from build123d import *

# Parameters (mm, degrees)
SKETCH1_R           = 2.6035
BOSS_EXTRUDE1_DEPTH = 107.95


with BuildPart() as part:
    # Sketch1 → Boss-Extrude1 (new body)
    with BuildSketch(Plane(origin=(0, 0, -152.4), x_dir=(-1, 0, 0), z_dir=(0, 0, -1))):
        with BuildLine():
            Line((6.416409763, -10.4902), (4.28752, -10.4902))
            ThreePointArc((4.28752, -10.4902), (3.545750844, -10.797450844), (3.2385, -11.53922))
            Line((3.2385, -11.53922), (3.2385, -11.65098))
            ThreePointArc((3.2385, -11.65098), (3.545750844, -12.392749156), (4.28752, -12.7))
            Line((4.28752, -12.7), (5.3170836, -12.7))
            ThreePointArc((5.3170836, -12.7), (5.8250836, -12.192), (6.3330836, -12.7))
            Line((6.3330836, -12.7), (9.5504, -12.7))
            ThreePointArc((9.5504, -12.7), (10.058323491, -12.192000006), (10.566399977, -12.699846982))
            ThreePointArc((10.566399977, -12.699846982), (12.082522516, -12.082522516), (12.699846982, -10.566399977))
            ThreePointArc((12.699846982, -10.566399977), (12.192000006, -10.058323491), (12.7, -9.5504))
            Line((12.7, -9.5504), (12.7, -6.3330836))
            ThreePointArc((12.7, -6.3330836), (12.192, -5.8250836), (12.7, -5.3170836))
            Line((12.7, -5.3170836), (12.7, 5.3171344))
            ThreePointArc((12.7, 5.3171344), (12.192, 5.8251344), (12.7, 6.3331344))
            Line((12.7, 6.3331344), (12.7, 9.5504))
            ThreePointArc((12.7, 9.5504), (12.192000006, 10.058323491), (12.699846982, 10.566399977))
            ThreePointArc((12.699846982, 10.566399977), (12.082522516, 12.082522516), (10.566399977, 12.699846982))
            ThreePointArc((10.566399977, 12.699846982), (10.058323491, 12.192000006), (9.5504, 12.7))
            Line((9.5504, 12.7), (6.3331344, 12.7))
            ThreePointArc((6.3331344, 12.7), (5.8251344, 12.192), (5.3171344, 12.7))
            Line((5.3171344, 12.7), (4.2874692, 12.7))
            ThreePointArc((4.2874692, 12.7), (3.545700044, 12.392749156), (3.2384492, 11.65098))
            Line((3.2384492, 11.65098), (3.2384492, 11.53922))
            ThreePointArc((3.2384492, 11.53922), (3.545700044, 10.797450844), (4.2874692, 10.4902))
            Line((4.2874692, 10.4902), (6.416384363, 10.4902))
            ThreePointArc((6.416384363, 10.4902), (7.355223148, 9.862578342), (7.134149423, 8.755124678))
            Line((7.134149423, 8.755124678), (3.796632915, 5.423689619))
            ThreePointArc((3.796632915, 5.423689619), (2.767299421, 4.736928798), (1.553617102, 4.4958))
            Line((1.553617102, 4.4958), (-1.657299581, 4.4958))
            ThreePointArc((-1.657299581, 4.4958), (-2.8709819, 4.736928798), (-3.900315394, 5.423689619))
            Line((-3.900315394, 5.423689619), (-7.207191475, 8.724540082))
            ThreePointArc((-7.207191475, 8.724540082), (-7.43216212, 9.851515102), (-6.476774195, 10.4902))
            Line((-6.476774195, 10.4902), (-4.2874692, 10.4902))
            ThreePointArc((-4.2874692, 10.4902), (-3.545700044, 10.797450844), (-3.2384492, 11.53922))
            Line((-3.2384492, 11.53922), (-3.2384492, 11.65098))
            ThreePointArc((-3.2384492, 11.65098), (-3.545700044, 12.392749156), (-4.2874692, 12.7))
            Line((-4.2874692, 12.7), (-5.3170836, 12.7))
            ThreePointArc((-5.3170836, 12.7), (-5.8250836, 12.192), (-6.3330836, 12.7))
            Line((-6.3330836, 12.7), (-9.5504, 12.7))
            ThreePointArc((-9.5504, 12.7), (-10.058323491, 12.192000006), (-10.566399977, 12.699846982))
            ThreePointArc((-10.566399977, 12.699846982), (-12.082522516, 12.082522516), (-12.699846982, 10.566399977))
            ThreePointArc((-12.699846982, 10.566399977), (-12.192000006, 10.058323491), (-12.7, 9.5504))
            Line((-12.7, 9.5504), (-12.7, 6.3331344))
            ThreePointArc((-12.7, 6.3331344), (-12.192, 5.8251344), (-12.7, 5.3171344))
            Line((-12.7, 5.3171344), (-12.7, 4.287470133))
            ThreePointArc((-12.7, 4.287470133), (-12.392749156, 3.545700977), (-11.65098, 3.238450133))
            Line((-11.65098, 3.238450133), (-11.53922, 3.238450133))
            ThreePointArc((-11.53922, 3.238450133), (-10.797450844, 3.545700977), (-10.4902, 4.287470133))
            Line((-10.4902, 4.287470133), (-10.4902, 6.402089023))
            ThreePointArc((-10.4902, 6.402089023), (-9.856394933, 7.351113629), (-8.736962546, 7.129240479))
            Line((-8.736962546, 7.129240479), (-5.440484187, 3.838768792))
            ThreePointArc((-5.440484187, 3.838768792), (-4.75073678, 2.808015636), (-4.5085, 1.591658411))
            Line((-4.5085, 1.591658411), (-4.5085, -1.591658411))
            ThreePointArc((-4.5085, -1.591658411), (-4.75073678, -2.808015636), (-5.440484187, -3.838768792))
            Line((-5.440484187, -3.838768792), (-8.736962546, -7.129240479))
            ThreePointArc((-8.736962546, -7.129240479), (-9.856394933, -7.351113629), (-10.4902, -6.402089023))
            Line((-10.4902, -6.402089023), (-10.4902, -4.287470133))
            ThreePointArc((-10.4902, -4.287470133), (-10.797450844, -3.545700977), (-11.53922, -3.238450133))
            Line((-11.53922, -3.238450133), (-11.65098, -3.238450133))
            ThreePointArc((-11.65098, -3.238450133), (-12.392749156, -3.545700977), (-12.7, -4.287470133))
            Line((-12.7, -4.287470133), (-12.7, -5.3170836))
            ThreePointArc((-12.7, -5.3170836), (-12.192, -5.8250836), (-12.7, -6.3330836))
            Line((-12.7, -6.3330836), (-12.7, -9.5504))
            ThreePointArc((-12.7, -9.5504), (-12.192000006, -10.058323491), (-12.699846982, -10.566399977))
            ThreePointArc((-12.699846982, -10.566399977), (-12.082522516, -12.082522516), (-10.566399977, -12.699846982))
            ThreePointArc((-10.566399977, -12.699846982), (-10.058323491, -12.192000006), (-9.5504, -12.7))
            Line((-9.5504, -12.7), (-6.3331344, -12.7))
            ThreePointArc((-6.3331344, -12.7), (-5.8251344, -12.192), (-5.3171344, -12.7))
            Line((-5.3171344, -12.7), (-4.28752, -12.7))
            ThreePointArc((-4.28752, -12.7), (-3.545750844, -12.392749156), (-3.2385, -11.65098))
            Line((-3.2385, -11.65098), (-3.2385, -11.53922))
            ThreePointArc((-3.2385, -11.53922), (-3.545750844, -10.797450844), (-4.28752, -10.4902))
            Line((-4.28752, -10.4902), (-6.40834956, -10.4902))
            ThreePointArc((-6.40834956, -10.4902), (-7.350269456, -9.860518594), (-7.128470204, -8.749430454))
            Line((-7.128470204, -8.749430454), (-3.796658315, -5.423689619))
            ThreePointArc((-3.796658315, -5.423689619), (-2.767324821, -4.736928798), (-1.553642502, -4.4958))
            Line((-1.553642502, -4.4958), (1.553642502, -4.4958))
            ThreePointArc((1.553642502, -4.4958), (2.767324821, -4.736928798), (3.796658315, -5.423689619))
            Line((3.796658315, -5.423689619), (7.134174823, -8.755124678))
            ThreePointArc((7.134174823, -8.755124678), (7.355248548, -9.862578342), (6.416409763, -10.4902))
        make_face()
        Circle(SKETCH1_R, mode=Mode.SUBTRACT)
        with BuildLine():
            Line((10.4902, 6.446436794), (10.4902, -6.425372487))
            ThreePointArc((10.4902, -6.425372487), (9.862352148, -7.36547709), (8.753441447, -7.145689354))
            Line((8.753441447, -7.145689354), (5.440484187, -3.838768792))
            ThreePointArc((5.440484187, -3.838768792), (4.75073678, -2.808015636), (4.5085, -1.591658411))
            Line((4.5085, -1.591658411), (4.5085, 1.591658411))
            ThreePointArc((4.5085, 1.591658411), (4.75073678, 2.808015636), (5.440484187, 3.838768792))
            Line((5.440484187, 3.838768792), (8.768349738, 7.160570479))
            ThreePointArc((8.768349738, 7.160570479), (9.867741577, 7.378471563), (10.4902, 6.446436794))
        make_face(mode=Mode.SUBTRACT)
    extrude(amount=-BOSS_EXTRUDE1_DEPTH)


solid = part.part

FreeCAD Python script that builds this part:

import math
import FreeCAD as App
import Part
import Sketcher
Q = App.Units.Quantity

doc = App.newDocument("Part")
params = doc.addObject("Spreadsheet::Sheet", "Params")
for row, (alias, value) in enumerate([
    ("sketch1_radius", "0.02 in"),
    ("sketch1_radius2", "0.04 in"),
    ("sketch1_diameter", "0.205 in"),
    ("sketch1_radius3", "0.083 in"),
    ("sketch1_radius4", "0.125 in"),
    ("pad1_length", "4.25 in"),
], start=1):
    params.set(f"A{row}", alias)
    params.set(f"B{row}", "=" + value)
    params.setAlias(f"B{row}", alias)

body = doc.addObject("PartDesign::Body", "Body")

sketch1 = doc.addObject("Sketcher::SketchObject", "Sketch")
body.addObject(sketch1)
sketch1.AttachmentSupport = (doc.XY_Plane, [""])
sketch1.MapMode = "FlatFace"
sketch1.AttachmentOffset = App.Placement(App.Vector(0, 0, -6 * 25.4), App.Rotation())
sketch1.addGeometry(Part.LineSegment(App.Vector(-6.42, -10.49, 0), App.Vector(-4.29, -10.49, 0)), False)
sketch1.addGeometry(Part.ArcOfCircle(Part.Circle(App.Vector(-4.29, -11.54, 0), App.Vector(0, 0, 1), 1.05), math.radians(0), math.radians(90)), False)
sketch1.addGeometry(Part.LineSegment(App.Vector(-3.24, -11.54, 0), App.Vector(-3.24, -11.65, 0)), False)
sketch1.addGeometry(Part.ArcOfCircle(Part.Circle(App.Vector(-4.29, -11.65, 0), App.Vector(0, 0, 1), 1.05), math.radians(-90), math.radians(0)), False)
sketch1.addGeometry(Part.LineSegment(App.Vector(-4.29, -12.7, 0), App.Vector(-5.32, -12.7, 0)), False)
sketch1.addGeometry(Part.ArcOfCircle(Part.Circle(App.Vector(-5.83, -12.7, 0), App.Vector(0, 0, 1), 0.51), math.radians(0), math.radians(180)), False)
sketch1.addGeometry(Part.LineSegment(App.Vector(-6.33, -12.7, 0), App.Vector(-9.55, -12.7, 0)), False)
sketch1.addGeometry(Part.ArcOfCircle(Part.Circle(App.Vector(-10.06, -12.7, 0), App.Vector(0, 0, 1), 0.51), math.radians(0), math.radians(180)), False)
sketch1.addGeometry(Part.ArcOfCircle(Part.Circle(App.Vector(-10.59, -10.59, 0), App.Vector(0, 0, 1), 2.11), math.radians(179), math.radians(271)), False)
sketch1.addGeometry(Part.ArcOfCircle(Part.Circle(App.Vector(-12.7, -10.06, 0), App.Vector(0, 0, 1), 0.51), math.radians(-90), math.radians(90)), False)
sketch1.addGeometry(Part.LineSegment(App.Vector(-12.7, -9.55, 0), App.Vector(-12.7, -6.33, 0)), False)
sketch1.addGeometry(Part.ArcOfCircle(Part.Circle(App.Vector(-12.7, -5.83, 0), App.Vector(0, 0, 1), 0.51), math.radians(-90), math.radians(90)), False)
sketch1.addGeometry(Part.LineSegment(App.Vector(-12.7, -5.32, 0), App.Vector(-12.7, 5.32, 0)), False)
sketch1.addGeometry(Part.ArcOfCircle(Part.Circle(App.Vector(-12.7, 5.83, 0), App.Vector(0, 0, 1), 0.51), math.radians(-90), math.radians(90)), False)
sketch1.addGeometry(Part.LineSegment(App.Vector(-12.7, 6.33, 0), App.Vector(-12.7, 9.55, 0)), False)
sketch1.addGeometry(Part.ArcOfCircle(Part.Circle(App.Vector(-12.7, 10.06, 0), App.Vector(0, 0, 1), 0.51), math.radians(-90), math.radians(90)), False)
sketch1.addGeometry(Part.ArcOfCircle(Part.Circle(App.Vector(-10.59, 10.59, 0), App.Vector(0, 0, 1), 2.11), math.radians(89), math.radians(181)), False)
sketch1.addGeometry(Part.ArcOfCircle(Part.Circle(App.Vector(-10.06, 12.7, 0), App.Vector(0, 0, 1), 0.51), math.radians(-180), math.radians(0)), False)
sketch1.addGeometry(Part.LineSegment(App.Vector(-9.55, 12.7, 0), App.Vector(-6.33, 12.7, 0)), False)
sketch1.addGeometry(Part.ArcOfCircle(Part.Circle(App.Vector(-5.83, 12.7, 0), App.Vector(0, 0, 1), 0.51), math.radians(180), math.radians(360)), False)
sketch1.addGeometry(Part.LineSegment(App.Vector(-5.32, 12.7, 0), App.Vector(-4.29, 12.7, 0)), False)
sketch1.addGeometry(Part.ArcOfCircle(Part.Circle(App.Vector(-4.29, 11.65, 0), App.Vector(0, 0, 1), 1.05), math.radians(0), math.radians(90)), False)
sketch1.addGeometry(Part.LineSegment(App.Vector(-3.24, 11.65, 0), App.Vector(-3.24, 11.54, 0)), False)
sketch1.addGeometry(Part.ArcOfCircle(Part.Circle(App.Vector(-4.29, 11.54, 0), App.Vector(0, 0, 1), 1.05), math.radians(-90), math.radians(0)), False)
sketch1.addGeometry(Part.LineSegment(App.Vector(-4.29, 10.49, 0), App.Vector(-6.42, 10.49, 0)), False)
sketch1.addGeometry(Part.ArcOfCircle(Part.Circle(App.Vector(-6.42, 9.47, 0), App.Vector(0, 0, 1), 1.02), math.radians(90), math.radians(225)), False)
sketch1.addGeometry(Part.LineSegment(App.Vector(-7.13, 8.76, 0), App.Vector(-3.8, 5.42, 0)), False)
sketch1.addGeometry(Part.ArcOfCircle(Part.Circle(App.Vector(-1.55, 7.67, 0), App.Vector(0, 0, 1), 3.17), math.radians(-135), math.radians(-90)), False)
sketch1.addGeometry(Part.LineSegment(App.Vector(-1.55, 4.5, 0), App.Vector(1.66, 4.5, 0)), False)
sketch1.addGeometry(Part.ArcOfCircle(Part.Circle(App.Vector(1.66, 7.67, 0), App.Vector(0, 0, 1), 3.17), math.radians(-90), math.radians(-45)), False)
sketch1.addGeometry(Part.LineSegment(App.Vector(3.9, 5.42, 0), App.Vector(7.21, 8.72, 0)), False)
sketch1.addGeometry(Part.ArcOfCircle(Part.Circle(App.Vector(6.48, 9.46, 0), App.Vector(0, 0, 1), 1.03), math.radians(-45), math.radians(90)), False)
sketch1.addGeometry(Part.LineSegment(App.Vector(6.48, 10.49, 0), App.Vector(4.29, 10.49, 0)), False)
sketch1.addGeometry(Part.ArcOfCircle(Part.Circle(App.Vector(4.29, 11.54, 0), App.Vector(0, 0, 1), 1.05), math.radians(180), math.radians(270)), False)
sketch1.addGeometry(Part.LineSegment(App.Vector(3.24, 11.54, 0), App.Vector(3.24, 11.65, 0)), False)
sketch1.addGeometry(Part.ArcOfCircle(Part.Circle(App.Vector(4.29, 11.65, 0), App.Vector(0, 0, 1), 1.05), math.radians(90), math.radians(180)), False)
sketch1.addGeometry(Part.LineSegment(App.Vector(4.29, 12.7, 0), App.Vector(5.32, 12.7, 0)), False)
sketch1.addGeometry(Part.ArcOfCircle(Part.Circle(App.Vector(5.83, 12.7, 0), App.Vector(0, 0, 1), 0.51), math.radians(180), math.radians(360)), False)
sketch1.addGeometry(Part.LineSegment(App.Vector(6.33, 12.7, 0), App.Vector(9.55, 12.7, 0)), False)
sketch1.addGeometry(Part.ArcOfCircle(Part.Circle(App.Vector(10.06, 12.7, 0), App.Vector(0, 0, 1), 0.51), math.radians(180), math.radians(360)), False)
sketch1.addGeometry(Part.ArcOfCircle(Part.Circle(App.Vector(10.59, 10.59, 0), App.Vector(0, 0, 1), 2.11), math.radians(-1), math.radians(91)), False)
sketch1.addGeometry(Part.ArcOfCircle(Part.Circle(App.Vector(12.7, 10.06, 0), App.Vector(0, 0, 1), 0.51), math.radians(90), math.radians(270)), False)
sketch1.addGeometry(Part.LineSegment(App.Vector(12.7, 9.55, 0), App.Vector(12.7, 6.33, 0)), False)
sketch1.addGeometry(Part.ArcOfCircle(Part.Circle(App.Vector(12.7, 5.83, 0), App.Vector(0, 0, 1), 0.51), math.radians(90), math.radians(270)), False)
sketch1.addGeometry(Part.LineSegment(App.Vector(12.7, 5.32, 0), App.Vector(12.7, 4.29, 0)), False)
sketch1.addGeometry(Part.ArcOfCircle(Part.Circle(App.Vector(11.65, 4.29, 0), App.Vector(0, 0, 1), 1.05), math.radians(-90), math.radians(0)), False)
sketch1.addGeometry(Part.LineSegment(App.Vector(11.65, 3.24, 0), App.Vector(11.54, 3.24, 0)), False)
sketch1.addGeometry(Part.ArcOfCircle(Part.Circle(App.Vector(11.54, 4.29, 0), App.Vector(0, 0, 1), 1.05), math.radians(180), math.radians(270)), False)
sketch1.addGeometry(Part.LineSegment(App.Vector(10.49, 4.29, 0), App.Vector(10.49, 6.4, 0)), False)
sketch1.addGeometry(Part.ArcOfCircle(Part.Circle(App.Vector(9.46, 6.4, 0), App.Vector(0, 0, 1), 1.03), math.radians(0), math.radians(135)), False)
sketch1.addGeometry(Part.LineSegment(App.Vector(8.74, 7.13, 0), App.Vector(5.44, 3.84, 0)), False)
sketch1.addGeometry(Part.ArcOfCircle(Part.Circle(App.Vector(7.68, 1.59, 0), App.Vector(0, 0, 1), 3.17), math.radians(135), math.radians(180)), False)
sketch1.addGeometry(Part.LineSegment(App.Vector(4.51, 1.59, 0), App.Vector(4.51, -1.59, 0)), False)
sketch1.addGeometry(Part.ArcOfCircle(Part.Circle(App.Vector(7.68, -1.59, 0), App.Vector(0, 0, 1), 3.17), math.radians(180), math.radians(225)), False)
sketch1.addGeometry(Part.LineSegment(App.Vector(5.44, -3.84, 0), App.Vector(8.74, -7.13, 0)), False)
sketch1.addGeometry(Part.ArcOfCircle(Part.Circle(App.Vector(9.46, -6.4, 0), App.Vector(0, 0, 1), 1.03), math.radians(-135), math.radians(0)), False)
sketch1.addGeometry(Part.LineSegment(App.Vector(10.49, -6.4, 0), App.Vector(10.49, -4.29, 0)), False)
sketch1.addGeometry(Part.ArcOfCircle(Part.Circle(App.Vector(11.54, -4.29, 0), App.Vector(0, 0, 1), 1.05), math.radians(90), math.radians(180)), False)
sketch1.addGeometry(Part.LineSegment(App.Vector(11.54, -3.24, 0), App.Vector(11.65, -3.24, 0)), False)
sketch1.addGeometry(Part.ArcOfCircle(Part.Circle(App.Vector(11.65, -4.29, 0), App.Vector(0, 0, 1), 1.05), math.radians(0), math.radians(90)), False)
sketch1.addGeometry(Part.LineSegment(App.Vector(12.7, -4.29, 0), App.Vector(12.7, -5.32, 0)), False)
sketch1.addGeometry(Part.ArcOfCircle(Part.Circle(App.Vector(12.7, -5.83, 0), App.Vector(0, 0, 1), 0.51), math.radians(90), math.radians(270)), False)
sketch1.addGeometry(Part.LineSegment(App.Vector(12.7, -6.33, 0), App.Vector(12.7, -9.55, 0)), False)
sketch1.addGeometry(Part.ArcOfCircle(Part.Circle(App.Vector(12.7, -10.06, 0), App.Vector(0, 0, 1), 0.51), math.radians(90), math.radians(270)), False)
sketch1.addGeometry(Part.ArcOfCircle(Part.Circle(App.Vector(10.59, -10.59, 0), App.Vector(0, 0, 1), 2.11), math.radians(-91), math.radians(1)), False)
sketch1.addGeometry(Part.ArcOfCircle(Part.Circle(App.Vector(10.06, -12.7, 0), App.Vector(0, 0, 1), 0.51), math.radians(0), math.radians(180)), False)
sketch1.addGeometry(Part.LineSegment(App.Vector(9.55, -12.7, 0), App.Vector(6.33, -12.7, 0)), False)
sketch1.addGeometry(Part.ArcOfCircle(Part.Circle(App.Vector(5.83, -12.7, 0), App.Vector(0, 0, 1), 0.51), math.radians(0), math.radians(180)), False)
sketch1.addGeometry(Part.LineSegment(App.Vector(5.32, -12.7, 0), App.Vector(4.29, -12.7, 0)), False)
sketch1.addGeometry(Part.ArcOfCircle(Part.Circle(App.Vector(4.29, -11.65, 0), App.Vector(0, 0, 1), 1.05), math.radians(180), math.radians(270)), False)
sketch1.addGeometry(Part.LineSegment(App.Vector(3.24, -11.65, 0), App.Vector(3.24, -11.54, 0)), False)
sketch1.addGeometry(Part.ArcOfCircle(Part.Circle(App.Vector(4.29, -11.54, 0), App.Vector(0, 0, 1), 1.05), math.radians(90), math.radians(180)), False)
sketch1.addGeometry(Part.LineSegment(App.Vector(4.29, -10.49, 0), App.Vector(6.41, -10.49, 0)), False)
sketch1.addGeometry(Part.ArcOfCircle(Part.Circle(App.Vector(6.41, -9.47, 0), App.Vector(0, 0, 1), 1.02), math.radians(-90), math.radians(45)), False)
sketch1.addGeometry(Part.LineSegment(App.Vector(7.13, -8.75, 0), App.Vector(3.8, -5.42, 0)), False)
sketch1.addGeometry(Part.ArcOfCircle(Part.Circle(App.Vector(1.55, -7.67, 0), App.Vector(0, 0, 1), 3.17), math.radians(45), math.radians(90)), False)
sketch1.addGeometry(Part.LineSegment(App.Vector(1.55, -4.5, 0), App.Vector(-1.55, -4.5, 0)), False)
sketch1.addGeometry(Part.ArcOfCircle(Part.Circle(App.Vector(-1.55, -7.67, 0), App.Vector(0, 0, 1), 3.17), math.radians(90), math.radians(135)), False)
sketch1.addGeometry(Part.LineSegment(App.Vector(-3.8, -5.42, 0), App.Vector(-7.13, -8.76, 0)), False)
sketch1.addGeometry(Part.ArcOfCircle(Part.Circle(App.Vector(-6.42, -9.47, 0), App.Vector(0, 0, 1), 1.02), math.radians(135), math.radians(270)), False)
sketch1.addGeometry(Part.Circle(App.Vector(0, 0, 0), App.Vector(0, 0, 1), 2.6), False)
sketch1.addGeometry(Part.ArcOfCircle(Part.Circle(App.Vector(-9.48, 6.45, 0), App.Vector(0, 0, 1), 1.01), math.radians(45), math.radians(180)), False)
sketch1.addGeometry(Part.LineSegment(App.Vector(-10.49, 6.45, 0), App.Vector(-10.49, -6.43, 0)), False)
sketch1.addGeometry(Part.ArcOfCircle(Part.Circle(App.Vector(-9.47, -6.43, 0), App.Vector(0, 0, 1), 1.02), math.radians(180), math.radians(315)), False)
sketch1.addGeometry(Part.LineSegment(App.Vector(-8.75, -7.15, 0), App.Vector(-5.44, -3.84, 0)), False)
sketch1.addGeometry(Part.ArcOfCircle(Part.Circle(App.Vector(-7.68, -1.59, 0), App.Vector(0, 0, 1), 3.17), math.radians(-45), math.radians(0)), False)
sketch1.addGeometry(Part.LineSegment(App.Vector(-4.51, -1.59, 0), App.Vector(-4.51, 1.59, 0)), False)
sketch1.addGeometry(Part.ArcOfCircle(Part.Circle(App.Vector(-7.68, 1.59, 0), App.Vector(0, 0, 1), 3.17), math.radians(0), math.radians(45)), False)
sketch1.addGeometry(Part.LineSegment(App.Vector(-5.44, 3.84, 0), App.Vector(-8.77, 7.16, 0)), False)
sketch1.addConstraint(Sketcher.Constraint("Tangent", 0, 2, 1, 2))
sketch1.addConstraint(Sketcher.Constraint("Tangent", 1, 1, 2, 1))
sketch1.addConstraint(Sketcher.Constraint("Tangent", 2, 2, 3, 2))
sketch1.addConstraint(Sketcher.Constraint("Tangent", 3, 1, 4, 1))
sketch1.addConstraint(Sketcher.Constraint("Coincident", 4, 2, 5, 1))
sketch1.addConstraint(Sketcher.Constraint("Coincident", 5, 2, 6, 1))
sketch1.addConstraint(Sketcher.Constraint("Coincident", 6, 2, 7, 1))
sketch1.addConstraint(Sketcher.Constraint("Coincident", 7, 2, 8, 2))
sketch1.addConstraint(Sketcher.Constraint("Coincident", 8, 1, 9, 1))
sketch1.addConstraint(Sketcher.Constraint("Coincident", 9, 2, 10, 1))
sketch1.addConstraint(Sketcher.Constraint("Coincident", 10, 2, 11, 1))
sketch1.addConstraint(Sketcher.Constraint("Coincident", 11, 2, 12, 1))
sketch1.addConstraint(Sketcher.Constraint("Coincident", 12, 2, 13, 1))
sketch1.addConstraint(Sketcher.Constraint("Coincident", 13, 2, 14, 1))
sketch1.addConstraint(Sketcher.Constraint("Coincident", 14, 2, 15, 1))
sketch1.addConstraint(Sketcher.Constraint("Coincident", 15, 2, 16, 2))
sketch1.addConstraint(Sketcher.Constraint("Coincident", 16, 1, 17, 1))
sketch1.addConstraint(Sketcher.Constraint("Coincident", 17, 2, 18, 1))
sketch1.addConstraint(Sketcher.Constraint("Coincident", 18, 2, 19, 1))
sketch1.addConstraint(Sketcher.Constraint("Coincident", 19, 2, 20, 1))
sketch1.addConstraint(Sketcher.Constraint("Tangent", 20, 2, 21, 2))
sketch1.addConstraint(Sketcher.Constraint("Tangent", 21, 1, 22, 1))
sketch1.addConstraint(Sketcher.Constraint("Tangent", 22, 2, 23, 2))
sketch1.addConstraint(Sketcher.Constraint("Tangent", 23, 1, 24, 1))
sketch1.addConstraint(Sketcher.Constraint("Tangent", 24, 2, 25, 1))
sketch1.addConstraint(Sketcher.Constraint("Tangent", 25, 2, 26, 1))
sketch1.addConstraint(Sketcher.Constraint("Tangent", 26, 2, 27, 1))
sketch1.addConstraint(Sketcher.Constraint("Tangent", 27, 2, 28, 1))
sketch1.addConstraint(Sketcher.Constraint("Tangent", 28, 2, 29, 1))
sketch1.addConstraint(Sketcher.Constraint("Tangent", 29, 2, 30, 1))
sketch1.addConstraint(Sketcher.Constraint("Tangent", 30, 2, 31, 1))
sketch1.addConstraint(Sketcher.Constraint("Tangent", 31, 2, 32, 1))
sketch1.addConstraint(Sketcher.Constraint("Tangent", 32, 2, 33, 2))
sketch1.addConstraint(Sketcher.Constraint("Tangent", 33, 1, 34, 1))
sketch1.addConstraint(Sketcher.Constraint("Tangent", 34, 2, 35, 2))
sketch1.addConstraint(Sketcher.Constraint("Tangent", 35, 1, 36, 1))
sketch1.addConstraint(Sketcher.Constraint("Coincident", 36, 2, 37, 1))
sketch1.addConstraint(Sketcher.Constraint("Coincident", 37, 2, 38, 1))
sketch1.addConstraint(Sketcher.Constraint("Coincident", 38, 2, 39, 1))
sketch1.addConstraint(Sketcher.Constraint("Coincident", 39, 2, 40, 2))
sketch1.addConstraint(Sketcher.Constraint("Coincident", 40, 1, 41, 1))
sketch1.addConstraint(Sketcher.Constraint("Coincident", 41, 2, 42, 1))
sketch1.addConstraint(Sketcher.Constraint("Coincident", 42, 2, 43, 1))
sketch1.addConstraint(Sketcher.Constraint("Coincident", 43, 2, 44, 1))
sketch1.addConstraint(Sketcher.Constraint("Tangent", 44, 2, 45, 2))
sketch1.addConstraint(Sketcher.Constraint("Tangent", 45, 1, 46, 1))
sketch1.addConstraint(Sketcher.Constraint("Tangent", 46, 2, 47, 2))
sketch1.addConstraint(Sketcher.Constraint("Tangent", 47, 1, 48, 1))
sketch1.addConstraint(Sketcher.Constraint("Tangent", 48, 2, 49, 1))
sketch1.addConstraint(Sketcher.Constraint("Tangent", 49, 2, 50, 1))
sketch1.addConstraint(Sketcher.Constraint("Tangent", 50, 2, 51, 1))
sketch1.addConstraint(Sketcher.Constraint("Tangent", 51, 2, 52, 1))
sketch1.addConstraint(Sketcher.Constraint("Tangent", 52, 2, 53, 1))
sketch1.addConstraint(Sketcher.Constraint("Tangent", 53, 2, 54, 1))
sketch1.addConstraint(Sketcher.Constraint("Tangent", 54, 2, 55, 1))
sketch1.addConstraint(Sketcher.Constraint("Tangent", 55, 2, 56, 1))
sketch1.addConstraint(Sketcher.Constraint("Tangent", 56, 2, 57, 2))
sketch1.addConstraint(Sketcher.Constraint("Tangent", 57, 1, 58, 1))
sketch1.addConstraint(Sketcher.Constraint("Tangent", 58, 2, 59, 2))
sketch1.addConstraint(Sketcher.Constraint("Tangent", 59, 1, 60, 1))
sketch1.addConstraint(Sketcher.Constraint("Coincident", 60, 2, 61, 1))
sketch1.addConstraint(Sketcher.Constraint("Coincident", 61, 2, 62, 1))
sketch1.addConstraint(Sketcher.Constraint("Coincident", 62, 2, 63, 1))
sketch1.addConstraint(Sketcher.Constraint("Coincident", 63, 2, 64, 2))
sketch1.addConstraint(Sketcher.Constraint("Coincident", 64, 1, 65, 1))
sketch1.addConstraint(Sketcher.Constraint("Coincident", 65, 2, 66, 1))
sketch1.addConstraint(Sketcher.Constraint("Coincident", 66, 2, 67, 1))
sketch1.addConstraint(Sketcher.Constraint("Coincident", 67, 2, 68, 1))
sketch1.addConstraint(Sketcher.Constraint("Tangent", 68, 2, 69, 2))
sketch1.addConstraint(Sketcher.Constraint("Tangent", 69, 1, 70, 1))
sketch1.addConstraint(Sketcher.Constraint("Tangent", 70, 2, 71, 2))
sketch1.addConstraint(Sketcher.Constraint("Tangent", 71, 1, 72, 1))
sketch1.addConstraint(Sketcher.Constraint("Tangent", 72, 2, 73, 1))
sketch1.addConstraint(Sketcher.Constraint("Tangent", 73, 2, 74, 1))
sketch1.addConstraint(Sketcher.Constraint("Tangent", 74, 2, 75, 1))
sketch1.addConstraint(Sketcher.Constraint("Tangent", 75, 2, 76, 1))
sketch1.addConstraint(Sketcher.Constraint("Tangent", 76, 2, 77, 1))
sketch1.addConstraint(Sketcher.Constraint("Tangent", 77, 2, 78, 1))
sketch1.addConstraint(Sketcher.Constraint("Tangent", 78, 2, 79, 1))
sketch1.addConstraint(Sketcher.Constraint("Tangent", 79, 2, 0, 1))
sketch1.addConstraint(Sketcher.Constraint("Tangent", 81, 2, 82, 1))
sketch1.addConstraint(Sketcher.Constraint("Tangent", 82, 2, 83, 1))
sketch1.addConstraint(Sketcher.Constraint("Tangent", 83, 2, 84, 1))
sketch1.addConstraint(Sketcher.Constraint("Tangent", 84, 2, 85, 1))
sketch1.addConstraint(Sketcher.Constraint("Tangent", 85, 2, 86, 1))
sketch1.addConstraint(Sketcher.Constraint("Tangent", 86, 2, 87, 1))
sketch1.addConstraint(Sketcher.Constraint("Tangent", 87, 2, 88, 1))
sketch1.addConstraint(Sketcher.Constraint("Tangent", 88, 2, 81, 1))
sketch1.addConstraint(Sketcher.Constraint("Horizontal", 0))
sketch1.addConstraint(Sketcher.Constraint("Vertical", 2))
sketch1.addConstraint(Sketcher.Constraint("Horizontal", 4))
sketch1.addConstraint(Sketcher.Constraint("Horizontal", 6))
sketch1.addConstraint(Sketcher.Constraint("Vertical", 10))
sketch1.addConstraint(Sketcher.Constraint("Vertical", 12))
sketch1.addConstraint(Sketcher.Constraint("Vertical", 14))
sketch1.addConstraint(Sketcher.Constraint("Horizontal", 18))
sketch1.addConstraint(Sketcher.Constraint("Horizontal", 20))
sketch1.addConstraint(Sketcher.Constraint("Vertical", 22))
sketch1.addConstraint(Sketcher.Constraint("Horizontal", 24))
sketch1.addConstraint(Sketcher.Constraint("Horizontal", 28))
sketch1.addConstraint(Sketcher.Constraint("Horizontal", 32))
sketch1.addConstraint(Sketcher.Constraint("Vertical", 34))
sketch1.addConstraint(Sketcher.Constraint("Horizontal", 36))
sketch1.addConstraint(Sketcher.Constraint("Horizontal", 38))
sketch1.addConstraint(Sketcher.Constraint("Vertical", 42))
sketch1.addConstraint(Sketcher.Constraint("Vertical", 44))
sketch1.addConstraint(Sketcher.Constraint("Horizontal", 46))
sketch1.addConstraint(Sketcher.Constraint("Vertical", 48))
sketch1.addConstraint(Sketcher.Constraint("Vertical", 52))
sketch1.addConstraint(Sketcher.Constraint("Vertical", 56))
sketch1.addConstraint(Sketcher.Constraint("Horizontal", 58))
sketch1.addConstraint(Sketcher.Constraint("Vertical", 60))
sketch1.addConstraint(Sketcher.Constraint("Vertical", 62))
sketch1.addConstraint(Sketcher.Constraint("Horizontal", 66))
sketch1.addConstraint(Sketcher.Constraint("Horizontal", 68))
sketch1.addConstraint(Sketcher.Constraint("Vertical", 70))
sketch1.addConstraint(Sketcher.Constraint("Horizontal", 72))
sketch1.addConstraint(Sketcher.Constraint("Horizontal", 76))
sketch1.addConstraint(Sketcher.Constraint("Vertical", 82))
sketch1.addConstraint(Sketcher.Constraint("Vertical", 86))
sketch1.addConstraint(Sketcher.Constraint("Coincident", 80, 3, -1, 1))
sketch1.addConstraint(Sketcher.Constraint("Equal", 1, 3))
sketch1.addConstraint(Sketcher.Constraint("Equal", 5, 7))
sketch1.addConstraint(Sketcher.Constraint("Equal", 7, 9))
sketch1.addConstraint(Sketcher.Constraint("Equal", 9, 11))
sketch1.addConstraint(Sketcher.Constraint("Equal", 11, 13))
sketch1.addConstraint(Sketcher.Constraint("Equal", 13, 15))
sketch1.addConstraint(Sketcher.Constraint("Equal", 8, 16))
sketch1.addConstraint(Sketcher.Constraint("Equal", 15, 17))
sketch1.addConstraint(Sketcher.Constraint("Equal", 17, 19))
sketch1.addConstraint(Sketcher.Constraint("Equal", 3, 21))
sketch1.addConstraint(Sketcher.Constraint("Equal", 21, 23))
sketch1.addConstraint(Sketcher.Constraint("Equal", 27, 29))
sketch1.addConstraint(Sketcher.Constraint("Equal", 23, 33))
sketch1.addConstraint(Sketcher.Constraint("Equal", 33, 35))
sketch1.addConstraint(Sketcher.Constraint("Equal", 19, 37))
sketch1.addConstraint(Sketcher.Constraint("Equal", 37, 39))
sketch1.addConstraint(Sketcher.Constraint("Equal", 16, 40))
sketch1.addConstraint(Sketcher.Constraint("Equal", 39, 41))
sketch1.addConstraint(Sketcher.Constraint("Equal", 41, 43))
sketch1.addConstraint(Sketcher.Constraint("Equal", 35, 45))
sketch1.addConstraint(Sketcher.Constraint("Equal", 45, 47))
sketch1.addConstraint(Sketcher.Constraint("Equal", 29, 51))
sketch1.addConstraint(Sketcher.Constraint("Equal", 51, 53))
sketch1.addConstraint(Sketcher.Constraint("Equal", 49, 55))
sketch1.addConstraint(Sketcher.Constraint("Equal", 47, 57))
sketch1.addConstraint(Sketcher.Constraint("Equal", 57, 59))
sketch1.addConstraint(Sketcher.Constraint("Equal", 43, 61))
sketch1.addConstraint(Sketcher.Constraint("Equal", 61, 63))
sketch1.addConstraint(Sketcher.Constraint("Equal", 40, 64))
sketch1.addConstraint(Sketcher.Constraint("Equal", 63, 65))
sketch1.addConstraint(Sketcher.Constraint("Equal", 65, 67))
sketch1.addConstraint(Sketcher.Constraint("Equal", 59, 69))
sketch1.addConstraint(Sketcher.Constraint("Equal", 69, 71))
sketch1.addConstraint(Sketcher.Constraint("Equal", 53, 75))
sketch1.addConstraint(Sketcher.Constraint("Equal", 75, 77))
sketch1.addConstraint(Sketcher.Constraint("Equal", 25, 79))
sketch1.addConstraint(Sketcher.Constraint("Equal", 77, 85))
sketch1.addConstraint(Sketcher.Constraint("Equal", 85, 87))
sketch1.addConstraint(Sketcher.Constraint("Symmetric", 5, 3, 37, 3, -1, 1))
sketch1.addConstraint(Sketcher.Constraint("Symmetric", 7, 3, 39, 3, -1, 1))
sketch1.addConstraint(Sketcher.Constraint("Symmetric", 8, 3, 40, 3, -1, 1))
sketch1.addConstraint(Sketcher.Constraint("Symmetric", 9, 3, 41, 3, -1, 1))
sketch1.addConstraint(Sketcher.Constraint("Symmetric", 15, 3, 63, 3, -1, 1))
sketch1.addConstraint(Sketcher.Constraint("Symmetric", 16, 3, 64, 3, -1, 1))
sketch1.addConstraint(Sketcher.Constraint("Symmetric", 17, 3, 65, 3, -1, 1))
sketch1.addConstraint(Sketcher.Constraint("Symmetric", 19, 3, 67, 3, -1, 1))
sketch1.addConstraint(Sketcher.Constraint("Symmetric", 51, 3, 85, 3, -1, 1))
sketch1.addConstraint(Sketcher.Constraint("Symmetric", 53, 2, 87, 2, -1, 1))
sketch1.addConstraint(Sketcher.Constraint("Symmetric", 23, 3, 33, 3, -2))
sketch1.addConstraint(Sketcher.Constraint("Symmetric", 17, 3, 39, 3, -2))
sketch1.addConstraint(Sketcher.Constraint("Symmetric", 16, 3, 40, 3, -2))
sketch1.addConstraint(Sketcher.Constraint("Symmetric", 15, 3, 41, 3, -2))
sketch1.addConstraint(Sketcher.Constraint("Symmetric", 13, 3, 43, 3, -2))
sketch1.addConstraint(Sketcher.Constraint("Symmetric", 11, 3, 61, 3, -2))
sketch1.addConstraint(Sketcher.Constraint("Symmetric", 3, 3, 69, 3, -2))
sketch1.addConstraint(Sketcher.Constraint("Symmetric", 74, 2, 77, 2, -2))
sketch1.addConstraint(Sketcher.Constraint("Symmetric", 53, 2, 84, 2, -2))
sketch1.addConstraint(Sketcher.Constraint("Symmetric", 49, 3, 55, 3, -1))
sketch1.addConstraint(Sketcher.Constraint("Symmetric", 45, 3, 59, 3, -1))
sketch1.addConstraint(Sketcher.Constraint("Parallel", 30, 50))
sketch1.addConstraint(Sketcher.Constraint("Parallel", 26, 54))
sketch1.addConstraint(Sketcher.Constraint("Parallel", 54, 74))
sketch1.addConstraint(Sketcher.Constraint("Horizontal", 5, 3, 7, 3))
sketch1.addConstraint(Sketcher.Constraint("Horizontal", 17, 3, 19, 3))
sketch1.addConstraint(Sketcher.Constraint("Horizontal", 21, 3, 35, 3))
sketch1.addConstraint(Sketcher.Constraint("Horizontal", 1, 3, 71, 3))
sketch1.addConstraint(Sketcher.Constraint("Horizontal", 67, 3, 3, 1))
sketch1.addConstraint(Sketcher.Constraint("Horizontal", 4, 2, 5, 2))
sketch1.addConstraint(Sketcher.Constraint("Horizontal", 39, 3, 17, 2))
sketch1.addConstraint(Sketcher.Constraint("Horizontal", 18, 2, 19, 2))
sketch1.addConstraint(Sketcher.Constraint("Horizontal", 36, 2, 37, 2))
sketch1.addConstraint(Sketcher.Constraint("Horizontal", 6, 2, 65, 2))
sketch1.addConstraint(Sketcher.Constraint("Vertical", 9, 3, 11, 3))
sketch1.addConstraint(Sketcher.Constraint("Vertical", 11, 3, 13, 3))
sketch1.addConstraint(Sketcher.Constraint("Vertical", 15, 3, 9, 2))
sketch1.addConstraint(Sketcher.Constraint("Vertical", 10, 2, 11, 2))
sketch1.addConstraint(Sketcher.Constraint("Vertical", 12, 2, 13, 2))
sketch1.addConstraint(Sketcher.Constraint("Vertical", 63, 3, 41, 2))
sketch1.addConstraint(Sketcher.Constraint("Vertical", 42, 2, 43, 2))
sketch1.addConstraint(Sketcher.Constraint("Vertical", 60, 2, 61, 2))
sketch1.addConstraint(Sketcher.Constraint("Equal", 36, 68))
sketch1.addConstraint(Sketcher.Constraint("Equal", 58, 2))
sketch1.addConstraint(Sketcher.Constraint("Equal", 38, 10))
sketch1.addConstraint(Sketcher.Constraint("Equal", 66, 14))
sketch1.addConstraint(Sketcher.Constraint("Equal", 2, 22))
sketch1.addConstraint(Sketcher.Constraint("Equal", 20, 44))
sketch1.addConstraint(Sketcher.Constraint("Equal", 26, 78))
sketch1.addConstraint(Sketcher.Constraint("Radius", 5, Q("0.02 in")))
sketch1.addConstraint(Sketcher.Constraint("Radius", 25, Q("0.04 in")))
sketch1.addConstraint(Sketcher.Constraint("Diameter", 80, Q("0.205 in")))
sketch1.addConstraint(Sketcher.Constraint("Radius", 8, Q("0.083 in")))
sketch1.addConstraint(Sketcher.Constraint("Radius", 27, Q("0.125 in")))
sketch1.addConstraint(Sketcher.Constraint("DistanceY", 5, 3, -1, 1, Q("0.5 in")))
sketch1.addConstraint(Sketcher.Constraint("DistanceX", 9, 3, -1, 1, Q("0.5 in")))
sketch1.addConstraint(Sketcher.Constraint("Radius", 1, Q("0.0413 in")))
sketch1.addConstraint(Sketcher.Constraint("DistanceX", 46, 2, 46, 1, Q("0.0044 in")))
sketch1.addConstraint(Sketcher.Constraint("DistanceX", 7, 3, -1, 1, Q("0.396 in")))
sketch1.addConstraint(Sketcher.Constraint("DistanceX", 8, 3, -1, 1, Q("0.417 in")))
sketch1.addConstraint(Sketcher.Constraint("DistanceY", 8, 3, -1, 1, Q("0.417 in")))
sketch1.addConstraint(Sketcher.Constraint("DistanceY", 9, 3, -1, 1, Q("0.396 in")))
sketch1.addConstraint(Sketcher.Constraint("DistanceY", -1, 1, 27, 3, Q("0.302 in")))
sketch1.addConstraint(Sketcher.Constraint("DistanceX", 81, 2, -1, 1, Q("0.413 in")))
sketch1.addConstraint(Sketcher.Constraint("Radius", 31, 1.033909))
sketch1.addConstraint(Sketcher.Constraint("Radius", 49, 1.027411))
sketch1.addConstraint(Sketcher.Constraint("DistanceX", 1, 3, -1, 1, Q("0.1688 in")))
sketch1.addConstraint(Sketcher.Constraint("DistanceX", -1, 1, 51, 3, Q("0.3025 in")))
sketch1.addConstraint(Sketcher.Constraint("Radius", 73, 1.019334))
sketch1.addConstraint(Sketcher.Constraint("Radius", 81, 1.009018))
sketch1.addConstraint(Sketcher.Constraint("Radius", 83, 1.017754))
sketch1.addConstraint(Sketcher.Constraint("DistanceX", 0, 1, 0, 2, 2.12889))
sketch1.addConstraint(Sketcher.Constraint("DistanceY", 12, 1, 12, 2, 10.634218))
sketch1.addConstraint(Sketcher.Constraint("DistanceY", 48, 1, 48, 2, 2.114619))
sketch1.addConstraint(Sketcher.Constraint("DistanceY", 82, 2, 82, 1, 12.871809))
sketch1.addConstraint(Sketcher.Constraint("DistanceX", -1, 1, 29, 3, 1.6573))
sketch1.addConstraint(Sketcher.Constraint("Distance", 30, 4.67237))
sketch1.addConstraint(Sketcher.Constraint("DistanceX", 24, 2, 24, 1, 2.128915))
sketch1.setExpression("Constraints[208]", "Params.sketch1_radius")
sketch1.setExpression("Constraints[209]", "Params.sketch1_radius2")
sketch1.setExpression("Constraints[210]", "Params.sketch1_diameter")
sketch1.setExpression("Constraints[211]", "Params.sketch1_radius3")
sketch1.setExpression("Constraints[212]", "Params.sketch1_radius4")
pad1 = doc.addObject("PartDesign::Pad", "Pad")
body.addObject(pad1)
pad1.Profile = sketch1
pad1.setExpression("Length", "Params.pad1_length")

doc.recompute()
